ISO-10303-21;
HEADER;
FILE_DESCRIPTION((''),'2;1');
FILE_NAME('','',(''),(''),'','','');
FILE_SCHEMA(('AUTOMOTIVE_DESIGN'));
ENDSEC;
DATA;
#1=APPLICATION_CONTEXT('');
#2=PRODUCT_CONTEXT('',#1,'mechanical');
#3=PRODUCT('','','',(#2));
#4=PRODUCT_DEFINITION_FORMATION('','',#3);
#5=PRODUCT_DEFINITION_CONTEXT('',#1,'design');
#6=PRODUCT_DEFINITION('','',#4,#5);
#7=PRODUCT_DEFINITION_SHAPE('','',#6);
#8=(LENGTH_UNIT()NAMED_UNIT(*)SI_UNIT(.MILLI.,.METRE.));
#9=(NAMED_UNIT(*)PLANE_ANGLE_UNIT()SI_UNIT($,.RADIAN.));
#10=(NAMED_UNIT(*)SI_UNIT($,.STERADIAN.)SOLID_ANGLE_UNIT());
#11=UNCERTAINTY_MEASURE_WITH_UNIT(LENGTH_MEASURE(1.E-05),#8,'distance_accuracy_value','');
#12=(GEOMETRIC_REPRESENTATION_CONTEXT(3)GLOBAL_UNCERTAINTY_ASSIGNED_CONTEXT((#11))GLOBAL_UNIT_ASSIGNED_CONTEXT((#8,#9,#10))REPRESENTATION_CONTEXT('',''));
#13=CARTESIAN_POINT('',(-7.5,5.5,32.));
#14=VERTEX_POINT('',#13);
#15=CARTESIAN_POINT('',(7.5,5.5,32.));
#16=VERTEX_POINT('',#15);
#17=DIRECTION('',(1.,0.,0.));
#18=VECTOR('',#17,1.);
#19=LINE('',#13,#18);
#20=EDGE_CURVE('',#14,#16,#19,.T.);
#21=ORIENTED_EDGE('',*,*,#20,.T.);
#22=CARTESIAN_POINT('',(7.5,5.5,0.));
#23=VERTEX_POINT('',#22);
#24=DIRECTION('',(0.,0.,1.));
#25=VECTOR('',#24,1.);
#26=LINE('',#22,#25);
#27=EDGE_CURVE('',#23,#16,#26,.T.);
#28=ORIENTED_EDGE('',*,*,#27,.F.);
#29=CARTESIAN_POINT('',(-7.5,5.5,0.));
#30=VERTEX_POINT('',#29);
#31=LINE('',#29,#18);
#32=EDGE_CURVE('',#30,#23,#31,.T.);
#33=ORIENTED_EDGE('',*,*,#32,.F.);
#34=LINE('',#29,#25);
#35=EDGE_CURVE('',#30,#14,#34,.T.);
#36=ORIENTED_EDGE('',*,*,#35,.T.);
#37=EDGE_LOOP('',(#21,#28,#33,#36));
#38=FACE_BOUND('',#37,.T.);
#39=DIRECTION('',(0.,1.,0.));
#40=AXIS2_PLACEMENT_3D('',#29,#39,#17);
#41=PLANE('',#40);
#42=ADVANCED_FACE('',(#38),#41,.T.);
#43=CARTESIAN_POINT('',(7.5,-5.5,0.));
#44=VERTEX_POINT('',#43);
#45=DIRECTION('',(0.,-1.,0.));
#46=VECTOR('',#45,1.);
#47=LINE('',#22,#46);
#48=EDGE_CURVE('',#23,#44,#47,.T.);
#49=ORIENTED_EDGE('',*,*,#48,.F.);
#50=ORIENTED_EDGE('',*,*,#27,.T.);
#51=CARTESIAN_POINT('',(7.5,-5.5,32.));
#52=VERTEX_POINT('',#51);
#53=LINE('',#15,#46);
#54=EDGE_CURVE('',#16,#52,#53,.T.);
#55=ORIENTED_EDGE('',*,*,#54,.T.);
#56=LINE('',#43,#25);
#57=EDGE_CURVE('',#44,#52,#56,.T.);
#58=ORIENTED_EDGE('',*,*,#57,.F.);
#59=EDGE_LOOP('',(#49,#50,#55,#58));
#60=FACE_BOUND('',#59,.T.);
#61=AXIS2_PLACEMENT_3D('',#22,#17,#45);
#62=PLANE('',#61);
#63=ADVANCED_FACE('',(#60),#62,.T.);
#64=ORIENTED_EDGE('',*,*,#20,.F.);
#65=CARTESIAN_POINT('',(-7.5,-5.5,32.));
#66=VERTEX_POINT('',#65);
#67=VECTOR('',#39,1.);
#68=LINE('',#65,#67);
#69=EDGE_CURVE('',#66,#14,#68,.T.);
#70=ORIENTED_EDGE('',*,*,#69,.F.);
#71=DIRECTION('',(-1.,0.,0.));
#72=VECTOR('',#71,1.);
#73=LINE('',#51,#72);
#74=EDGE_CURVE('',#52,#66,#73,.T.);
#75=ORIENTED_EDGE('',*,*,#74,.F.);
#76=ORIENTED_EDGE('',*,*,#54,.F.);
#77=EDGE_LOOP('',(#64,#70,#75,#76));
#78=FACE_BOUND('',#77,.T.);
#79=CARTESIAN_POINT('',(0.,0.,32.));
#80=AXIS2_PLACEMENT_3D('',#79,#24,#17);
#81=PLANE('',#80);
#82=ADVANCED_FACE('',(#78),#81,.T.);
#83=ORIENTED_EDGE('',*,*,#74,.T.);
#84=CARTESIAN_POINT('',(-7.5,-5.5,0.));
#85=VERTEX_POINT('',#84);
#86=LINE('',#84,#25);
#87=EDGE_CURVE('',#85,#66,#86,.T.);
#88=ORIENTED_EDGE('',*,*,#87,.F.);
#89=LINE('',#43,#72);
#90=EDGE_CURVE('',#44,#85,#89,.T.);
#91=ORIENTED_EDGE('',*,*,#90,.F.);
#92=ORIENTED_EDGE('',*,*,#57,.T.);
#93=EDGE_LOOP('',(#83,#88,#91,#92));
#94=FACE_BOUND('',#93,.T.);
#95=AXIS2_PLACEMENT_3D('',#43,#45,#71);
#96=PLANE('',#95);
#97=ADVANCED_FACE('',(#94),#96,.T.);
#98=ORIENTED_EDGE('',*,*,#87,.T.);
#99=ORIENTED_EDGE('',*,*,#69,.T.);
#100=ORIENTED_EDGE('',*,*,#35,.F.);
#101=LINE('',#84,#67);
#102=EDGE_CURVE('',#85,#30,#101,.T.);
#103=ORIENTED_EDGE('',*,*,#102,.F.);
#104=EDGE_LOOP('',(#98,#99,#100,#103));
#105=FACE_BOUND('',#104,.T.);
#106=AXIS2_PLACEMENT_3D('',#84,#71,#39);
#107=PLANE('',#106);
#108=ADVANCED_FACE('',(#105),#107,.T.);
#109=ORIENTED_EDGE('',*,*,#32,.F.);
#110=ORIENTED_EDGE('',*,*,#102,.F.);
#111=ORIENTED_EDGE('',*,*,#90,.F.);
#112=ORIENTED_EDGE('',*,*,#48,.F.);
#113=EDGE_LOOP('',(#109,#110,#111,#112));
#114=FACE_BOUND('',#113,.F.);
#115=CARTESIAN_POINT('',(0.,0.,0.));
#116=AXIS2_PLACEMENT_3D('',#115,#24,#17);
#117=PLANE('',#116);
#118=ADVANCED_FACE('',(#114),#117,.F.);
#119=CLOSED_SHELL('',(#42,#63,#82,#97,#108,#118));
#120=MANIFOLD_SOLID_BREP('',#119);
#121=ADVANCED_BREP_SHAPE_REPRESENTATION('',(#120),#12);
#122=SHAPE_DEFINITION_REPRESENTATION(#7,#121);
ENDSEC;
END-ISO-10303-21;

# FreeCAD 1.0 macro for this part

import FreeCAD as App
import Part
import Sketcher
from FreeCAD import Vector


def add_polygon(sketch, points):
    """Adds a closed chain of lines whose ends are joined by coincident constraints."""
    first, n = sketch.GeometryCount, len(points)
    for a, b in zip(points, points[1:] + points[:1]):
        sketch.addGeometry(Part.LineSegment(App.Vector(*a, 0), App.Vector(*b, 0)), False)
    for i in range(n):
        sketch.addConstraint(Sketcher.Constraint("Coincident", first + i, 2, first + (i + 1) % n, 1))

doc = App.newDocument("Part")
body = doc.addObject("PartDesign::Body", "Body")

# Sketch on XY plane
sketch1 = body.newObject("Sketcher::SketchObject", "Sketch")
sketch1.AttachmentSupport = (doc.getObject("XY_Plane"), [""])
sketch1.MapMode = "FlatFace"
add_polygon(sketch1, [(-8, -6), (8, -6), (8, 6), (-8, 6)])  # lines 0-3
sketch1.addConstraint([
    Sketcher.Constraint("Horizontal", 0),
    Sketcher.Constraint("Vertical", 1),
    Sketcher.Constraint("Horizontal", 2),
    Sketcher.Constraint("Vertical", 3),
    Sketcher.Constraint("Symmetric", 0, 2, 2, 2, -1, 1),
    Sketcher.Constraint("DistanceX", 0, 1, 0, 2, 15.0),
    Sketcher.Constraint("DistanceY", 1, 1, 1, 2, 11.0),
])
pad1 = body.newObject("PartDesign::Pad", "Pad")
pad1.Profile = sketch1
pad1.Length = 32

doc.recompute()
